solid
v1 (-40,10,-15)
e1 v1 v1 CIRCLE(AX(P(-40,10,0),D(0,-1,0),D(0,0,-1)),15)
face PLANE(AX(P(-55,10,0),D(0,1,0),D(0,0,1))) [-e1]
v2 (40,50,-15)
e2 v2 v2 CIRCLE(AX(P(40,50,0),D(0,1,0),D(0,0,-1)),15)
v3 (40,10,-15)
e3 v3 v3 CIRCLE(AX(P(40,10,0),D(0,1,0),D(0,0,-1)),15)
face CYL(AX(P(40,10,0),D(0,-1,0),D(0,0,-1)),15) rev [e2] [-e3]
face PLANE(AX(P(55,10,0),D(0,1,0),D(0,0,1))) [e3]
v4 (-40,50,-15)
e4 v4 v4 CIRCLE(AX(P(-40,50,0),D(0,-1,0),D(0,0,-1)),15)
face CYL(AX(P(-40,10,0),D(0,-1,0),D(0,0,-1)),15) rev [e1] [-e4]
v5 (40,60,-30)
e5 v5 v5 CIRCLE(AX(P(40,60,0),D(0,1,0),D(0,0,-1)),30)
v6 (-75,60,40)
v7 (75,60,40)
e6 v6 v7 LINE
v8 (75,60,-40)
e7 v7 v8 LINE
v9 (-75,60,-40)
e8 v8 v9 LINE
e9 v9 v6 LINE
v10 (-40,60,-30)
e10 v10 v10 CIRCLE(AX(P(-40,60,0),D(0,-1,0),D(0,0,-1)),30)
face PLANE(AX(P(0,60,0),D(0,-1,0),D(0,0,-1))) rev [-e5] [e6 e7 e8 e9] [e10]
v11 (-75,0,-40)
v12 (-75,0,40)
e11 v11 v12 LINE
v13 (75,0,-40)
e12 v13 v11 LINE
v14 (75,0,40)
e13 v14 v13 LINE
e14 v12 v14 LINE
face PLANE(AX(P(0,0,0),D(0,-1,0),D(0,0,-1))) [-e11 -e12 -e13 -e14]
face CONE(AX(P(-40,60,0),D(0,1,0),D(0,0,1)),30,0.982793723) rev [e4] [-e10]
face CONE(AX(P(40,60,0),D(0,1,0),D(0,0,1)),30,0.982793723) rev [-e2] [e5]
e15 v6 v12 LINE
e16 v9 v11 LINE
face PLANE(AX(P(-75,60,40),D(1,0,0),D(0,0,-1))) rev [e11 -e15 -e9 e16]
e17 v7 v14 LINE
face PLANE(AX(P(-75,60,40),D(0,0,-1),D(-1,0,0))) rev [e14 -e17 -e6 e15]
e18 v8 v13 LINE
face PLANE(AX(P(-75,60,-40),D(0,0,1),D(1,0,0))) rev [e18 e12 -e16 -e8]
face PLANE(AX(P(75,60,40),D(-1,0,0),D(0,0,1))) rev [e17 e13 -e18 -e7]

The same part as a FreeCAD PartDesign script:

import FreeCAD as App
import Part
import Sketcher
from FreeCAD import Vector
Q = App.Units.Quantity


def add_polygon(sketch, points):
    """Adds a closed chain of lines whose ends are joined by coincident constraints."""
    first, n = sketch.GeometryCount, len(points)
    for a, b in zip(points, points[1:] + points[:1]):
        sketch.addGeometry(Part.LineSegment(App.Vector(*a, 0), App.Vector(*b, 0)), False)
    for i in range(n):
        sketch.addConstraint(Sketcher.Constraint("Coincident", first + i, 2, first + (i + 1) % n, 1))

doc = App.newDocument("Part")
body = doc.addObject("PartDesign::Body", "Body")

# Sketch on XZ plane
sketch1 = body.newObject("Sketcher::SketchObject", "Sketch")
sketch1.AttachmentSupport = (doc.getObject("XZ_Plane"), [""])
sketch1.MapMode = "FlatFace"
add_polygon(sketch1, [(-75, -40), (-75, 40), (75, 40), (75, -40)])  # lines 0-3
sketch1.addConstraint([
    Sketcher.Constraint("Vertical", 0),
    Sketcher.Constraint("Horizontal", 1),
    Sketcher.Constraint("Vertical", 2),
    Sketcher.Constraint("Horizontal", 3),
    Sketcher.Constraint("Symmetric", 0, 2, 2, 2, -1, 1),
    Sketcher.Constraint("DistanceX", 1, 1, 1, 2, Q("150 mm")),
    Sketcher.Constraint("DistanceY", 0, 1, 0, 2, Q("80 mm")),
])
pad1 = body.newObject("PartDesign::Pad", "Pad")
pad1.Profile = sketch1
pad1.Length = 60
pad1.Reversed = True

# Sketch on XY plane
sketch2 = body.newObject("Sketcher::SketchObject", "Sketch001")
sketch2.AttachmentSupport = (doc.getObject("XY_Plane"), [""])
sketch2.MapMode = "FlatFace"
add_polygon(sketch2, [(-40, 60), (-70, 60), (-55, 50), (-55, 10), (-40, 10)])  # lines 0-4
sketch2.addGeometry(Part.LineSegment(Vector(-40, 10, 0), Vector(-40, 60, 0)), True)  # axis
sketch2.addConstraint([
    Sketcher.Constraint("Horizontal", 0),
    Sketcher.Constraint("Vertical", 2),
    Sketcher.Constraint("Horizontal", 3),
    Sketcher.Constraint("Vertical", 4),
    Sketcher.Constraint("Vertical", 5),
    Sketcher.Constraint("Coincident", 5, 1, 3, 2),
    Sketcher.Constraint("Horizontal", 0, 2, 5, 2),
    Sketcher.Constraint("DistanceX", 0, 2, 0, 1, Q("30 mm")),
    Sketcher.Constraint("DistanceX", 3, 1, 3, 2, Q("15 mm")),
    Sketcher.Constraint("DistanceY", 2, 2, 2, 1, Q("40 mm")),
    Sketcher.Constraint("DistanceY", 4, 1, 4, 2, Q("50 mm")),
    Sketcher.Constraint("DistanceX", 0, 2, -1, 1, Q("70 mm")),
    Sketcher.Constraint("DistanceY", -1, 1, 0, 2, Q("60 mm")),
])
groove = body.newObject("PartDesign::Groove", "Groove")
groove.Profile = sketch2
groove.ReferenceAxis = (sketch2, ["Axis0"])
groove.Angle = 360
doc.recompute()

mirrored = body.newObject("PartDesign::Mirrored", "Mirrored")
mirrored.Originals = [groove]
mirrored.MirrorPlane = (doc.getObject("YZ_Plane"), [""])
body.Tip = mirrored

doc.recompute()
